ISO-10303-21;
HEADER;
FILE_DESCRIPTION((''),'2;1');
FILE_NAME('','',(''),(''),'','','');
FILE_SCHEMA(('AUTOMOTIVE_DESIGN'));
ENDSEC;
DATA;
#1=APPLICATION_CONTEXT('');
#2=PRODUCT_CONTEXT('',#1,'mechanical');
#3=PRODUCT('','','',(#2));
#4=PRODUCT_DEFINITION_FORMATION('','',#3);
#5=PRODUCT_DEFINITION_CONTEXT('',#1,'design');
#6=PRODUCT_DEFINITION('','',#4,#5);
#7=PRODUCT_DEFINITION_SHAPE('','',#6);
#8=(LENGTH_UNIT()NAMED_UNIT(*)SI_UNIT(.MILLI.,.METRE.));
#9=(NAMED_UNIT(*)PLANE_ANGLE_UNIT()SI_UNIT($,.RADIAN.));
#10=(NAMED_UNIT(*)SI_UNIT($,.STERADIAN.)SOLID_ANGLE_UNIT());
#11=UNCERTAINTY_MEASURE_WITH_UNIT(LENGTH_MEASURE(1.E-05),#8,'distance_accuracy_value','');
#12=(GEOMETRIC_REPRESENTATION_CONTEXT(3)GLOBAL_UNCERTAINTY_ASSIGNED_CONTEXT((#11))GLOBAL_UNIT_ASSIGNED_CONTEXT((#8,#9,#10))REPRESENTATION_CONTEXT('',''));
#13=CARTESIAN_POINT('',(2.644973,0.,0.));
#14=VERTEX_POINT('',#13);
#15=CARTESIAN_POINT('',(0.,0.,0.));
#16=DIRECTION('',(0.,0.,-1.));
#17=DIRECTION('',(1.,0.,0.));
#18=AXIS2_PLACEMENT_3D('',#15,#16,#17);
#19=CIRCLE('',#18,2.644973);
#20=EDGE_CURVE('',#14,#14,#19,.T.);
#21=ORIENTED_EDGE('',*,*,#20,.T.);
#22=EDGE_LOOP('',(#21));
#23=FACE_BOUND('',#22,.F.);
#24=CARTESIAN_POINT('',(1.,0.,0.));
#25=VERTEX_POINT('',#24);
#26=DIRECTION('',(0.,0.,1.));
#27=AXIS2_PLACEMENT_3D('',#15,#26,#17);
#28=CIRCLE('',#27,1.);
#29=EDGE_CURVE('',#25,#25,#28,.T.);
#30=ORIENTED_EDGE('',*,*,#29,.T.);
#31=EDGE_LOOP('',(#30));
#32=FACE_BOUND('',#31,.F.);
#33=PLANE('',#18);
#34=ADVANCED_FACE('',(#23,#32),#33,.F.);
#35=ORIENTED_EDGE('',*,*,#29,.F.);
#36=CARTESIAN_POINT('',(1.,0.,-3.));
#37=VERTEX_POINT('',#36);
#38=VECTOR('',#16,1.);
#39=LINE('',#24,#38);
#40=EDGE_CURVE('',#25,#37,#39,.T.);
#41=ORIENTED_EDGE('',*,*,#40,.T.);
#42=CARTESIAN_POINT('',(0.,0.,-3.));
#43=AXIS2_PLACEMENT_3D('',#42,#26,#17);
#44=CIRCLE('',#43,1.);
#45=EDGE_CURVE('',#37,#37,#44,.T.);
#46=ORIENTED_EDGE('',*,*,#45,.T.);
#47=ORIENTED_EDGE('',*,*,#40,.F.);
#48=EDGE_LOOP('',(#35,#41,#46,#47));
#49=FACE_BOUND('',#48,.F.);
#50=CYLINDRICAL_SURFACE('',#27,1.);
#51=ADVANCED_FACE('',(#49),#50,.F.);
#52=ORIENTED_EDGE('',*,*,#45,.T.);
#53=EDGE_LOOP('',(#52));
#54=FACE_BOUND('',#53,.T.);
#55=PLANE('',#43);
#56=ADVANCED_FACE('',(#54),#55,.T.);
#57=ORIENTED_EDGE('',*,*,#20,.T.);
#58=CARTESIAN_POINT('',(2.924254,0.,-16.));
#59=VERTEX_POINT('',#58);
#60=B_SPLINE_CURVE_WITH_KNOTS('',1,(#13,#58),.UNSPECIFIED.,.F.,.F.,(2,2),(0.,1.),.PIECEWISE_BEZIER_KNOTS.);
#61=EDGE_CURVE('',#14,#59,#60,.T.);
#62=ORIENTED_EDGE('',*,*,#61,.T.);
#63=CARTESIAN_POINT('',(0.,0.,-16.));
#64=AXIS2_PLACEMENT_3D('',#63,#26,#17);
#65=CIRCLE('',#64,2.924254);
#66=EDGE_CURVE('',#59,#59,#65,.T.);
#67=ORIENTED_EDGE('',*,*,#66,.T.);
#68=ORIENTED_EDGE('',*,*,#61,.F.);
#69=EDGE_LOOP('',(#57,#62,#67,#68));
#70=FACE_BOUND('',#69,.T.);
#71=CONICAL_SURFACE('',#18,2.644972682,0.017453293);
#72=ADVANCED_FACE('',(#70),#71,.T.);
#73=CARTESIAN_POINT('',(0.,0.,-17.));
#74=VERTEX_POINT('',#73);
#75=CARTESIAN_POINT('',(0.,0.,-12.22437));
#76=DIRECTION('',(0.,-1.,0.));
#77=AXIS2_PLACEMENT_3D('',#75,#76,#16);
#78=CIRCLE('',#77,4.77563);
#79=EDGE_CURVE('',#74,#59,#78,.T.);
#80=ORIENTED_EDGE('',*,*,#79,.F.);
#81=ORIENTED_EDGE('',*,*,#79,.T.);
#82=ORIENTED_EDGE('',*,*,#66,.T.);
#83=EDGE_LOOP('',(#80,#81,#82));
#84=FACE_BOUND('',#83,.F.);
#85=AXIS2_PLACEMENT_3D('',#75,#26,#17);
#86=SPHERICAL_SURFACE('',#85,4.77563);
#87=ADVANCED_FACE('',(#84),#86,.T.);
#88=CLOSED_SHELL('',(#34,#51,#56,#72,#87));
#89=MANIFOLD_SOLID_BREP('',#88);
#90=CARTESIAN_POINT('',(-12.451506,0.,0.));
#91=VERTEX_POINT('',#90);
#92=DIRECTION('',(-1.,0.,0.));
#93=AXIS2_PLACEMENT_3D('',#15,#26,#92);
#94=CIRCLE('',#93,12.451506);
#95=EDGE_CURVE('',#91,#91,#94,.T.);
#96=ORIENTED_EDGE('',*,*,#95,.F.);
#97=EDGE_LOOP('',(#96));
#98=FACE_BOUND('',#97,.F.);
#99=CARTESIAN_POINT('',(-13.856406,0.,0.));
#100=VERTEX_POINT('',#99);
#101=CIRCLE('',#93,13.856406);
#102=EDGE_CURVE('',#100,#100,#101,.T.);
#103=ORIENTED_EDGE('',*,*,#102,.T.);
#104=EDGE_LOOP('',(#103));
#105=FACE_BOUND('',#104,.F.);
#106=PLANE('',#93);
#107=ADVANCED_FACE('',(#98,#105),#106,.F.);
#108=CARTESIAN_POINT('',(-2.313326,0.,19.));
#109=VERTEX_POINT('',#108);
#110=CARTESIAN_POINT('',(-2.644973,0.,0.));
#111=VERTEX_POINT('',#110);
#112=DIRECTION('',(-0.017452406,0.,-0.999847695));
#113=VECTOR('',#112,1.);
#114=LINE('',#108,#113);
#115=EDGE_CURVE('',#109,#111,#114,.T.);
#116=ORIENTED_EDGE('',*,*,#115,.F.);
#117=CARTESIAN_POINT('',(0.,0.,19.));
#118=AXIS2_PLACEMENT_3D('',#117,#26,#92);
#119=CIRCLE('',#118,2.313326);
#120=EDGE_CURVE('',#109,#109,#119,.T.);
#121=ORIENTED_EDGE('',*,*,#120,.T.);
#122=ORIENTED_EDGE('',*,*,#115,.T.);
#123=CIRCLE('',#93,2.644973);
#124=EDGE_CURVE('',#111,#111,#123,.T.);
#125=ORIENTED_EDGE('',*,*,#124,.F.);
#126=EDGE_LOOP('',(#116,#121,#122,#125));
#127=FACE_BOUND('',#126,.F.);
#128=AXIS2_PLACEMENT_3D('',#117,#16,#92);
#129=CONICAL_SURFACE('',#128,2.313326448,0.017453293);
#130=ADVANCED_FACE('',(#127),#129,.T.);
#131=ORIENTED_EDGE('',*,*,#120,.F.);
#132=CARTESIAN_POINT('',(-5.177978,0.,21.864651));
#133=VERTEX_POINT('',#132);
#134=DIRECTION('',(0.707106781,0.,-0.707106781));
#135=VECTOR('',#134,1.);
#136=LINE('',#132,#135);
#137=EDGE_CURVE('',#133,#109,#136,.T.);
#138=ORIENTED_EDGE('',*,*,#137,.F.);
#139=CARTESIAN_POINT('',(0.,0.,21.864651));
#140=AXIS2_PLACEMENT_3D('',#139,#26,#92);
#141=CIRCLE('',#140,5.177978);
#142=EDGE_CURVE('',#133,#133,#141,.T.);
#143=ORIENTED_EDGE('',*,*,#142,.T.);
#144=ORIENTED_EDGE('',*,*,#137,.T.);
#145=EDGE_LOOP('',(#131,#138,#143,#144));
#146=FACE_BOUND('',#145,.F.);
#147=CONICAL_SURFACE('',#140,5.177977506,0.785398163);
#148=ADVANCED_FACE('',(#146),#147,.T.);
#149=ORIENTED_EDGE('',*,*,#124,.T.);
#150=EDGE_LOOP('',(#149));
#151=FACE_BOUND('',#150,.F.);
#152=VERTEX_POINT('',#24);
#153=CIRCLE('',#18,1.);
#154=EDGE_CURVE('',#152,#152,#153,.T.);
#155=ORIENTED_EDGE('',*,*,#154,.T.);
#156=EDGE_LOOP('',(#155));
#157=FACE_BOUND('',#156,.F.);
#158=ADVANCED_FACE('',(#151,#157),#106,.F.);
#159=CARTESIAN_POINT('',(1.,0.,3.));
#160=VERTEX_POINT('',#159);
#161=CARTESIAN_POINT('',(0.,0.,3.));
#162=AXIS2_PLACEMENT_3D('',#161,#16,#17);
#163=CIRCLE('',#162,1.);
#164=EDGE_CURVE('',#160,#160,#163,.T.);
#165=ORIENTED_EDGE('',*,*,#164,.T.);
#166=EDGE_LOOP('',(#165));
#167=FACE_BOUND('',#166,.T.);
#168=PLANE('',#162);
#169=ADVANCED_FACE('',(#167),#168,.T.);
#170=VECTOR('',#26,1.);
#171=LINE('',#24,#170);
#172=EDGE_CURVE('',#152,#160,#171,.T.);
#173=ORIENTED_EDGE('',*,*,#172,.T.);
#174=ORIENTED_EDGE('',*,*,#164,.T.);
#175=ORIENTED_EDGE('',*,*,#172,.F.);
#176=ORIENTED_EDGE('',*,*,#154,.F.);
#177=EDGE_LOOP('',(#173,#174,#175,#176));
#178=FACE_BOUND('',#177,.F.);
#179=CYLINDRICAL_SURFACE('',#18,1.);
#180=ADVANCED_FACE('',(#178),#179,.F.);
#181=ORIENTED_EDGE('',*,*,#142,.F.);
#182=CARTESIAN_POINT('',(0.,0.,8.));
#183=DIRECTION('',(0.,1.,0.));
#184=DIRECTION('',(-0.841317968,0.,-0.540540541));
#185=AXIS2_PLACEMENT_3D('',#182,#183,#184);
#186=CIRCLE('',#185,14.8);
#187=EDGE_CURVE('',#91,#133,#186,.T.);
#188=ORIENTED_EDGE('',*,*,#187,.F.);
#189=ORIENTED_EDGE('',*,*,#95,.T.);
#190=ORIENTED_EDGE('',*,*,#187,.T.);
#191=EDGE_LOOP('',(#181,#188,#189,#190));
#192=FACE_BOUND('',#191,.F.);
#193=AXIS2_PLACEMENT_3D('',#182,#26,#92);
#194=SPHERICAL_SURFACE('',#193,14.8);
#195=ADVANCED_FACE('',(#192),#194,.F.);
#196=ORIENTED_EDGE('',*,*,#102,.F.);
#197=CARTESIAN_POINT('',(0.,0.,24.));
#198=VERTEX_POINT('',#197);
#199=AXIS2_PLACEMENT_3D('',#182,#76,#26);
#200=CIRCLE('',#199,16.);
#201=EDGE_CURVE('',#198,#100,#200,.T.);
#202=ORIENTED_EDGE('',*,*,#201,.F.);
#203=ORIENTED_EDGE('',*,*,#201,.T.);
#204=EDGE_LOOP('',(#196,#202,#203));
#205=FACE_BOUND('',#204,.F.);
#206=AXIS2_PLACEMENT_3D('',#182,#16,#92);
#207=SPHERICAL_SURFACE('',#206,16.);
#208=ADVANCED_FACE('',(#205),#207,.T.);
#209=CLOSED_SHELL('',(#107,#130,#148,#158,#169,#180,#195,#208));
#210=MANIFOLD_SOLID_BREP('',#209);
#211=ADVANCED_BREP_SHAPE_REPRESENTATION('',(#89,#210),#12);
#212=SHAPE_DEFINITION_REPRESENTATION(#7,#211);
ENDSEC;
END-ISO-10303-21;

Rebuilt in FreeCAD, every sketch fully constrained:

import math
import FreeCAD as App
import Part
import Sketcher
from FreeCAD import Vector
Q = App.Units.Quantity

doc = App.newDocument("Part")
params = doc.addObject("Spreadsheet::Sheet", "Params")
for row, (alias, value) in enumerate([
    ("sketch1_radius", "16 mm"),
    ("sketch1_radius2", "14.8 mm"),
    ("sketch1_height", "24 mm"),
    ("revolution_angle", "360 deg"),
    ("sketch2_diameter", "2 mm"),
    ("pocket1_length", "3 mm"),
    ("pad1_length", "16 mm"),
    ("pad1_taper", "1 deg"),
    ("sketch4_height", "1 mm"),
    ("revolution2_angle", "360 deg"),
    ("sketch5_diameter", "2 mm"),
    ("pocket2_length", "3 mm"),
], start=1):
    params.set(f"A{row}", alias)
    params.set(f"B{row}", "=" + value)
    params.setAlias(f"B{row}", alias)

body = doc.addObject("PartDesign::Body", "Body")

sketch1 = body.newObject("Sketcher::SketchObject", "Sketch")
sketch1.AttachmentSupport = (doc.getObject("XZ_Plane"), [""])
sketch1.MapMode = "FlatFace"
sketch1.addGeometry([
    Part.ArcOfCircle(Part.Circle(Vector(0, 8, 0), Vector(0, 0, 1), 16), math.radians(90), math.radians(210)),
    Part.LineSegment(Vector(-13.9, 0, 0), Vector(-12.5, 0, 0)),
    Part.ArcOfCircle(Part.Circle(Vector(0, 8, 0), Vector(0, 0, 1), 14.8), math.radians(110), math.radians(213)),
    Part.LineSegment(Vector(-5.2, 21.9, 0), Vector(-2.3, 19, 0)),
    Part.LineSegment(Vector(-2.3, 19, 0), Vector(-2.6, 0, 0)),
    Part.LineSegment(Vector(-2.6, 0, 0), Vector(0, 0, 0)),
    Part.LineSegment(Vector(0, 0, 0), Vector(0, 24, 0)),
], False)
sketch1.addConstraint([
    Sketcher.Constraint("Coincident", 0, 2, 1, 1),
    Sketcher.Constraint("Coincident", 1, 2, 2, 2),
    Sketcher.Constraint("Coincident", 2, 1, 3, 1),
    Sketcher.Constraint("Coincident", 3, 2, 4, 1),
    Sketcher.Constraint("Coincident", 4, 2, 5, 1),
    Sketcher.Constraint("Coincident", 5, 2, 6, 1),
    Sketcher.Constraint("Coincident", 6, 2, 0, 1),
    Sketcher.Constraint("Horizontal", 1),
    Sketcher.Constraint("Horizontal", 5),
    Sketcher.Constraint("Vertical", 6),
    Sketcher.Constraint("Coincident", 5, 2, -1, 1),
    Sketcher.Constraint("Coincident", 2, 3, 0, 3),
    Sketcher.Constraint("PointOnObject", 0, 3, -2),
    Sketcher.Constraint("PointOnObject", 0, 2, -1),
    Sketcher.Constraint("Radius", 0, Q("16 mm")),
    Sketcher.Constraint("Radius", 2, Q("14.8 mm")),
    Sketcher.Constraint("DistanceY", 6, 1, 6, 2, Q("24 mm")),
    Sketcher.Constraint("Angle", 3, Q("-45 deg")),
    Sketcher.Constraint("Angle", 4, Q("-91 deg")),
    Sketcher.Constraint("DistanceY", -1, 1, 3, 2, Q("19 mm")),
    Sketcher.Constraint("Distance", 3, Q("4.051228 mm")),
])
sketch1.setExpression("Constraints[14]", "Params.sketch1_radius")
sketch1.setExpression("Constraints[15]", "Params.sketch1_radius2")
sketch1.setExpression("Constraints[16]", "Params.sketch1_height")
revolution = body.newObject("PartDesign::Revolution", "Revolution")
revolution.Profile = sketch1
revolution.ReferenceAxis = (sketch1, ["V_Axis"])
revolution.setExpression("Angle", "Params.revolution_angle")

sketch2 = body.newObject("Sketcher::SketchObject", "Sketch001")
sketch2.AttachmentSupport = (doc.getObject("XY_Plane"), [""])
sketch2.MapMode = "FlatFace"
sketch2.addGeometry(Part.Circle(Vector(0, 0, 0), Vector(0, 0, 1), 1), False)
sketch2.addConstraint([
    Sketcher.Constraint("Coincident", 0, 3, -1, 1),
    Sketcher.Constraint("Diameter", 0, Q("2 mm")),
])
sketch2.setExpression("Constraints[1]", "Params.sketch2_diameter")
pocket1 = body.newObject("PartDesign::Pocket", "Pocket")
pocket1.Profile = sketch2
pocket1.setExpression("Length", "Params.pocket1_length")
pocket1.Reversed = True
body2 = doc.addObject("PartDesign::Body", "Body001")

sketch3 = body2.newObject("Sketcher::SketchObject", "Sketch002")
sketch3.AttachmentSupport = (doc.getObject("XY_Plane001"), [""])
sketch3.MapMode = "FlatFace"
sketch3.addGeometry(Part.Circle(Vector(0, 0, 0), Vector(0, 0, 1), 2.6), False)
sketch3.addConstraint([
    Sketcher.Constraint("Coincident", 0, 3, -1, 1),
    Sketcher.Constraint("Diameter", 0, Q("5.289945 mm")),
])
pad1 = body2.newObject("PartDesign::Pad", "Pad")
pad1.Profile = sketch3
pad1.setExpression("Length", "Params.pad1_length")
pad1.Reversed = True
pad1.setExpression("TaperAngle", "Params.pad1_taper")

sketch4 = body2.newObject("Sketcher::SketchObject", "Sketch003")
sketch4.AttachmentSupport = (doc.getObject("XZ_Plane001"), [""])
sketch4.MapMode = "FlatFace"
sketch4.addGeometry([
    Part.ArcOfCircle(Part.Circle(Vector(0, -12.2, 0), Vector(0, 0, 1), 4.8), math.radians(-90), math.radians(-52)),
    Part.LineSegment(Vector(2.9, -16, 0), Vector(0, -16, 0)),
    Part.LineSegment(Vector(0, -16, 0), Vector(0, -17, 0)),
], False)
sketch4.addConstraint([
    Sketcher.Constraint("Coincident", 0, 2, 1, 1),
    Sketcher.Constraint("Coincident", 1, 2, 2, 1),
    Sketcher.Constraint("Coincident", 2, 2, 0, 1),
    Sketcher.Constraint("Horizontal", 1),
    Sketcher.Constraint("Vertical", 2),
    Sketcher.Constraint("PointOnObject", 0, 3, -2),
    Sketcher.Constraint("PointOnObject", 1, 2, -2),
    Sketcher.Constraint("DistanceY", 2, 2, 2, 1, Q("1 mm")),
    Sketcher.Constraint("DistanceY", 0, 2, -1, 1, Q("16 mm")),
    Sketcher.Constraint("Radius", 0, Q("4.77563 mm")),
])
sketch4.setExpression("Constraints[7]", "Params.sketch4_height")
revolution2 = body2.newObject("PartDesign::Revolution", "Revolution001")
revolution2.Profile = sketch4
revolution2.ReferenceAxis = (sketch4, ["V_Axis"])
revolution2.setExpression("Angle", "Params.revolution2_angle")

sketch5 = body2.newObject("Sketcher::SketchObject", "Sketch004")
sketch5.AttachmentSupport = (doc.getObject("XY_Plane001"), [""])
sketch5.MapMode = "FlatFace"
sketch5.addGeometry(Part.Circle(Vector(0, 0, 0), Vector(0, 0, 1), 1), False)
sketch5.addConstraint([
    Sketcher.Constraint("Coincident", 0, 3, -1, 1),
    Sketcher.Constraint("Diameter", 0, Q("2 mm")),
])
sketch5.setExpression("Constraints[1]", "Params.sketch5_diameter")
pocket2 = body2.newObject("PartDesign::Pocket", "Pocket001")
pocket2.Profile = sketch5
pocket2.setExpression("Length", "Params.pocket2_length")

doc.recompute()
